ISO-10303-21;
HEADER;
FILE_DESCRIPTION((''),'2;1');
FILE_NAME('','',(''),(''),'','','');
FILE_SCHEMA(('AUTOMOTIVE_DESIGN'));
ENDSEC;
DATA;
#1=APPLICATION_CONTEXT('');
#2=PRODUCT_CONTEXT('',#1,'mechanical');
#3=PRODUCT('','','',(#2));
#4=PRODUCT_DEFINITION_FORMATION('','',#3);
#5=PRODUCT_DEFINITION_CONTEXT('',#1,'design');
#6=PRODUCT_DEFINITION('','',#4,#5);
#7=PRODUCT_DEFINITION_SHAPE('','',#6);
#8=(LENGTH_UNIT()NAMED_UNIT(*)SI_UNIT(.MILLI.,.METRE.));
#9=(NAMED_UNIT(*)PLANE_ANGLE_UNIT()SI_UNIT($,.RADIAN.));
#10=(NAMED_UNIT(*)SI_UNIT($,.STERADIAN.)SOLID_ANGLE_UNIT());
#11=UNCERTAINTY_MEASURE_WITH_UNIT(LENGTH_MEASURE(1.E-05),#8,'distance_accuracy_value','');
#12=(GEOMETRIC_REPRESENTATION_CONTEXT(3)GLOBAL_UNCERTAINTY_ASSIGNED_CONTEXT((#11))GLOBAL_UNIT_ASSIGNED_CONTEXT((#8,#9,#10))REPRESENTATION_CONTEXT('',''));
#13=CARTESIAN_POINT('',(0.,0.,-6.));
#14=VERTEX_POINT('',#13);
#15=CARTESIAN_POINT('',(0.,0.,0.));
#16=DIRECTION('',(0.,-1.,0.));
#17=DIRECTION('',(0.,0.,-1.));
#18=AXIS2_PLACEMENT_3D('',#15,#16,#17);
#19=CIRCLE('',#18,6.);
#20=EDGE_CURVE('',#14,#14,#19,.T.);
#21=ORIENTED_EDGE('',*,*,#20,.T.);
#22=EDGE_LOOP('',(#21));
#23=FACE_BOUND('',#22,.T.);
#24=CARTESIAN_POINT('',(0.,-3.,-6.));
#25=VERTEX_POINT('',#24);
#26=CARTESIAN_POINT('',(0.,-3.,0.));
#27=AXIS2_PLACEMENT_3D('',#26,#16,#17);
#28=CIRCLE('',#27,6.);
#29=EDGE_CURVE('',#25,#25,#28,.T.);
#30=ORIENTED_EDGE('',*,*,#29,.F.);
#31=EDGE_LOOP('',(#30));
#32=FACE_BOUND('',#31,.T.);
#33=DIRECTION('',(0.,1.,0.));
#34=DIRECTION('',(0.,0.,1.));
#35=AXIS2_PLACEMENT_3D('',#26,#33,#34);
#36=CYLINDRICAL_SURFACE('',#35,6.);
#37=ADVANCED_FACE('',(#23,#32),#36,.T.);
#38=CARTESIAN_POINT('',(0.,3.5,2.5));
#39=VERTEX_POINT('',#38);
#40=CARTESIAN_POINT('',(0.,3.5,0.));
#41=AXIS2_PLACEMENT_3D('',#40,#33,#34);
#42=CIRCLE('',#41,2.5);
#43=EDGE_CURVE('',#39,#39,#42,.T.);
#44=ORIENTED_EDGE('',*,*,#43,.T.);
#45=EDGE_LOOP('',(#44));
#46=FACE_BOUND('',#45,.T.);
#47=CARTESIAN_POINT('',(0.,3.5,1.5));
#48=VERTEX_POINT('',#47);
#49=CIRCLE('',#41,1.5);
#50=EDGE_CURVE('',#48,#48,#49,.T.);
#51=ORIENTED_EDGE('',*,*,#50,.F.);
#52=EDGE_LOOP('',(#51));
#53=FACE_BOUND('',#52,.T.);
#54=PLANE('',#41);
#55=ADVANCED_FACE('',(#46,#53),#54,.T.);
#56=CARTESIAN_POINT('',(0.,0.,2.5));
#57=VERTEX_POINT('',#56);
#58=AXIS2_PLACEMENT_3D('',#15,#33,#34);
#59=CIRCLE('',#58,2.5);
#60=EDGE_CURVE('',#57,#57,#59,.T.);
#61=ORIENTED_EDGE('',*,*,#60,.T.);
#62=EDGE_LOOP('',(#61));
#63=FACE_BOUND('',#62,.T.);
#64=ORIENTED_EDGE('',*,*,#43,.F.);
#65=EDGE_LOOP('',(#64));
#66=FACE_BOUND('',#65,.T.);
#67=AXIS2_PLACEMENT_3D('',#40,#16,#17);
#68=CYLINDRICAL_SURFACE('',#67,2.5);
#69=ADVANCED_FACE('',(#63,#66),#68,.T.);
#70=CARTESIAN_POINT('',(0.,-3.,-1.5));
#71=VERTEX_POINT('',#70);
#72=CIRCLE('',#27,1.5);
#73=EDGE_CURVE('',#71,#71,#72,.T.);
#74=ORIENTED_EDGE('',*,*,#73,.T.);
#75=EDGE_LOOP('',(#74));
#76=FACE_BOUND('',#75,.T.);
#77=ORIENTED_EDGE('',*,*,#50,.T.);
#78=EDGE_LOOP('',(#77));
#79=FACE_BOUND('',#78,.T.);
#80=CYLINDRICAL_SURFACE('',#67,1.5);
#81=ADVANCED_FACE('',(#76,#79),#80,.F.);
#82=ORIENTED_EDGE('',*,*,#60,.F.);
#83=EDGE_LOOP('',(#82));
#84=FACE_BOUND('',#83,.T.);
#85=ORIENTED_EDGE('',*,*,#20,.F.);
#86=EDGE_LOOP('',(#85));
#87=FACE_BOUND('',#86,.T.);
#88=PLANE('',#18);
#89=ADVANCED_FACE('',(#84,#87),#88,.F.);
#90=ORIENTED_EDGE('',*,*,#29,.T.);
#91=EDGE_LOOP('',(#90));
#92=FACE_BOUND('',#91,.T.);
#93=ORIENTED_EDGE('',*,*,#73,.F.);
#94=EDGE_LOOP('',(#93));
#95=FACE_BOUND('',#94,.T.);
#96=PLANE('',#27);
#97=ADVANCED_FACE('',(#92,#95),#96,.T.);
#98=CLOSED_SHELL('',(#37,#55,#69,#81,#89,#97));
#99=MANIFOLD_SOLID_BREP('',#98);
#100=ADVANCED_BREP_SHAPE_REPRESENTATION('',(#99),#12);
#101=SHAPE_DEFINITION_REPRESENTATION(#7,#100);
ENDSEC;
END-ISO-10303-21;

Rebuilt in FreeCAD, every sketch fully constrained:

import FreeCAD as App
import Part
import Sketcher
from FreeCAD import Vector

doc = App.newDocument("Part")
body = doc.addObject("PartDesign::Body", "Body")

sketch1 = doc.addObject("Sketcher::SketchObject", "Sketch")
body.addObject(sketch1)
sketch1.AttachmentSupport = (doc.XZ_Plane, [""])
sketch1.MapMode = "FlatFace"
sketch1.addGeometry(Part.Circle(Vector(0, 0, 0), Vector(0, 0, 1), 2.5), False)
sketch1.addGeometry(Part.Circle(Vector(0, 0, 0), Vector(0, 0, 1), 1.5), False)
sketch1.addConstraint(Sketcher.Constraint("Coincident", 0, 3, -1, 1))
sketch1.addConstraint(Sketcher.Constraint("Coincident", 1, 3, -1, 1))
sketch1.addConstraint(Sketcher.Constraint("Diameter", 0, 5.0))
sketch1.addConstraint(Sketcher.Constraint("Diameter", 1, 3.0))
pad1 = doc.addObject("PartDesign::Pad", "Pad")
body.addObject(pad1)
pad1.Profile = sketch1
pad1.Length = 3.5
pad1.Reversed = True

sketch2 = doc.addObject("Sketcher::SketchObject", "Sketch001")
body.addObject(sketch2)
sketch2.AttachmentSupport = (doc.XZ_Plane, [""])
sketch2.MapMode = "FlatFace"
sketch2.AttachmentOffset = App.Placement(Vector(0, 0, 3), App.Rotation())
sketch2.addGeometry(Part.Circle(Vector(0, 0, 0), Vector(0, 0, 1), 6), False)
sketch2.addGeometry(Part.Circle(Vector(0, 0, 0), Vector(0, 0, 1), 1.5), False)
sketch2.addConstraint(Sketcher.Constraint("Coincident", 0, 3, -1, 1))
sketch2.addConstraint(Sketcher.Constraint("Coincident", 1, 3, -1, 1))
sketch2.addConstraint(Sketcher.Constraint("Diameter", 0, 12.0))
sketch2.addConstraint(Sketcher.Constraint("Diameter", 1, 3.0))
pad2 = doc.addObject("PartDesign::Pad", "Pad001")
body.addObject(pad2)
pad2.Profile = sketch2
pad2.Length = 3
pad2.Reversed = True

doc.recompute()
